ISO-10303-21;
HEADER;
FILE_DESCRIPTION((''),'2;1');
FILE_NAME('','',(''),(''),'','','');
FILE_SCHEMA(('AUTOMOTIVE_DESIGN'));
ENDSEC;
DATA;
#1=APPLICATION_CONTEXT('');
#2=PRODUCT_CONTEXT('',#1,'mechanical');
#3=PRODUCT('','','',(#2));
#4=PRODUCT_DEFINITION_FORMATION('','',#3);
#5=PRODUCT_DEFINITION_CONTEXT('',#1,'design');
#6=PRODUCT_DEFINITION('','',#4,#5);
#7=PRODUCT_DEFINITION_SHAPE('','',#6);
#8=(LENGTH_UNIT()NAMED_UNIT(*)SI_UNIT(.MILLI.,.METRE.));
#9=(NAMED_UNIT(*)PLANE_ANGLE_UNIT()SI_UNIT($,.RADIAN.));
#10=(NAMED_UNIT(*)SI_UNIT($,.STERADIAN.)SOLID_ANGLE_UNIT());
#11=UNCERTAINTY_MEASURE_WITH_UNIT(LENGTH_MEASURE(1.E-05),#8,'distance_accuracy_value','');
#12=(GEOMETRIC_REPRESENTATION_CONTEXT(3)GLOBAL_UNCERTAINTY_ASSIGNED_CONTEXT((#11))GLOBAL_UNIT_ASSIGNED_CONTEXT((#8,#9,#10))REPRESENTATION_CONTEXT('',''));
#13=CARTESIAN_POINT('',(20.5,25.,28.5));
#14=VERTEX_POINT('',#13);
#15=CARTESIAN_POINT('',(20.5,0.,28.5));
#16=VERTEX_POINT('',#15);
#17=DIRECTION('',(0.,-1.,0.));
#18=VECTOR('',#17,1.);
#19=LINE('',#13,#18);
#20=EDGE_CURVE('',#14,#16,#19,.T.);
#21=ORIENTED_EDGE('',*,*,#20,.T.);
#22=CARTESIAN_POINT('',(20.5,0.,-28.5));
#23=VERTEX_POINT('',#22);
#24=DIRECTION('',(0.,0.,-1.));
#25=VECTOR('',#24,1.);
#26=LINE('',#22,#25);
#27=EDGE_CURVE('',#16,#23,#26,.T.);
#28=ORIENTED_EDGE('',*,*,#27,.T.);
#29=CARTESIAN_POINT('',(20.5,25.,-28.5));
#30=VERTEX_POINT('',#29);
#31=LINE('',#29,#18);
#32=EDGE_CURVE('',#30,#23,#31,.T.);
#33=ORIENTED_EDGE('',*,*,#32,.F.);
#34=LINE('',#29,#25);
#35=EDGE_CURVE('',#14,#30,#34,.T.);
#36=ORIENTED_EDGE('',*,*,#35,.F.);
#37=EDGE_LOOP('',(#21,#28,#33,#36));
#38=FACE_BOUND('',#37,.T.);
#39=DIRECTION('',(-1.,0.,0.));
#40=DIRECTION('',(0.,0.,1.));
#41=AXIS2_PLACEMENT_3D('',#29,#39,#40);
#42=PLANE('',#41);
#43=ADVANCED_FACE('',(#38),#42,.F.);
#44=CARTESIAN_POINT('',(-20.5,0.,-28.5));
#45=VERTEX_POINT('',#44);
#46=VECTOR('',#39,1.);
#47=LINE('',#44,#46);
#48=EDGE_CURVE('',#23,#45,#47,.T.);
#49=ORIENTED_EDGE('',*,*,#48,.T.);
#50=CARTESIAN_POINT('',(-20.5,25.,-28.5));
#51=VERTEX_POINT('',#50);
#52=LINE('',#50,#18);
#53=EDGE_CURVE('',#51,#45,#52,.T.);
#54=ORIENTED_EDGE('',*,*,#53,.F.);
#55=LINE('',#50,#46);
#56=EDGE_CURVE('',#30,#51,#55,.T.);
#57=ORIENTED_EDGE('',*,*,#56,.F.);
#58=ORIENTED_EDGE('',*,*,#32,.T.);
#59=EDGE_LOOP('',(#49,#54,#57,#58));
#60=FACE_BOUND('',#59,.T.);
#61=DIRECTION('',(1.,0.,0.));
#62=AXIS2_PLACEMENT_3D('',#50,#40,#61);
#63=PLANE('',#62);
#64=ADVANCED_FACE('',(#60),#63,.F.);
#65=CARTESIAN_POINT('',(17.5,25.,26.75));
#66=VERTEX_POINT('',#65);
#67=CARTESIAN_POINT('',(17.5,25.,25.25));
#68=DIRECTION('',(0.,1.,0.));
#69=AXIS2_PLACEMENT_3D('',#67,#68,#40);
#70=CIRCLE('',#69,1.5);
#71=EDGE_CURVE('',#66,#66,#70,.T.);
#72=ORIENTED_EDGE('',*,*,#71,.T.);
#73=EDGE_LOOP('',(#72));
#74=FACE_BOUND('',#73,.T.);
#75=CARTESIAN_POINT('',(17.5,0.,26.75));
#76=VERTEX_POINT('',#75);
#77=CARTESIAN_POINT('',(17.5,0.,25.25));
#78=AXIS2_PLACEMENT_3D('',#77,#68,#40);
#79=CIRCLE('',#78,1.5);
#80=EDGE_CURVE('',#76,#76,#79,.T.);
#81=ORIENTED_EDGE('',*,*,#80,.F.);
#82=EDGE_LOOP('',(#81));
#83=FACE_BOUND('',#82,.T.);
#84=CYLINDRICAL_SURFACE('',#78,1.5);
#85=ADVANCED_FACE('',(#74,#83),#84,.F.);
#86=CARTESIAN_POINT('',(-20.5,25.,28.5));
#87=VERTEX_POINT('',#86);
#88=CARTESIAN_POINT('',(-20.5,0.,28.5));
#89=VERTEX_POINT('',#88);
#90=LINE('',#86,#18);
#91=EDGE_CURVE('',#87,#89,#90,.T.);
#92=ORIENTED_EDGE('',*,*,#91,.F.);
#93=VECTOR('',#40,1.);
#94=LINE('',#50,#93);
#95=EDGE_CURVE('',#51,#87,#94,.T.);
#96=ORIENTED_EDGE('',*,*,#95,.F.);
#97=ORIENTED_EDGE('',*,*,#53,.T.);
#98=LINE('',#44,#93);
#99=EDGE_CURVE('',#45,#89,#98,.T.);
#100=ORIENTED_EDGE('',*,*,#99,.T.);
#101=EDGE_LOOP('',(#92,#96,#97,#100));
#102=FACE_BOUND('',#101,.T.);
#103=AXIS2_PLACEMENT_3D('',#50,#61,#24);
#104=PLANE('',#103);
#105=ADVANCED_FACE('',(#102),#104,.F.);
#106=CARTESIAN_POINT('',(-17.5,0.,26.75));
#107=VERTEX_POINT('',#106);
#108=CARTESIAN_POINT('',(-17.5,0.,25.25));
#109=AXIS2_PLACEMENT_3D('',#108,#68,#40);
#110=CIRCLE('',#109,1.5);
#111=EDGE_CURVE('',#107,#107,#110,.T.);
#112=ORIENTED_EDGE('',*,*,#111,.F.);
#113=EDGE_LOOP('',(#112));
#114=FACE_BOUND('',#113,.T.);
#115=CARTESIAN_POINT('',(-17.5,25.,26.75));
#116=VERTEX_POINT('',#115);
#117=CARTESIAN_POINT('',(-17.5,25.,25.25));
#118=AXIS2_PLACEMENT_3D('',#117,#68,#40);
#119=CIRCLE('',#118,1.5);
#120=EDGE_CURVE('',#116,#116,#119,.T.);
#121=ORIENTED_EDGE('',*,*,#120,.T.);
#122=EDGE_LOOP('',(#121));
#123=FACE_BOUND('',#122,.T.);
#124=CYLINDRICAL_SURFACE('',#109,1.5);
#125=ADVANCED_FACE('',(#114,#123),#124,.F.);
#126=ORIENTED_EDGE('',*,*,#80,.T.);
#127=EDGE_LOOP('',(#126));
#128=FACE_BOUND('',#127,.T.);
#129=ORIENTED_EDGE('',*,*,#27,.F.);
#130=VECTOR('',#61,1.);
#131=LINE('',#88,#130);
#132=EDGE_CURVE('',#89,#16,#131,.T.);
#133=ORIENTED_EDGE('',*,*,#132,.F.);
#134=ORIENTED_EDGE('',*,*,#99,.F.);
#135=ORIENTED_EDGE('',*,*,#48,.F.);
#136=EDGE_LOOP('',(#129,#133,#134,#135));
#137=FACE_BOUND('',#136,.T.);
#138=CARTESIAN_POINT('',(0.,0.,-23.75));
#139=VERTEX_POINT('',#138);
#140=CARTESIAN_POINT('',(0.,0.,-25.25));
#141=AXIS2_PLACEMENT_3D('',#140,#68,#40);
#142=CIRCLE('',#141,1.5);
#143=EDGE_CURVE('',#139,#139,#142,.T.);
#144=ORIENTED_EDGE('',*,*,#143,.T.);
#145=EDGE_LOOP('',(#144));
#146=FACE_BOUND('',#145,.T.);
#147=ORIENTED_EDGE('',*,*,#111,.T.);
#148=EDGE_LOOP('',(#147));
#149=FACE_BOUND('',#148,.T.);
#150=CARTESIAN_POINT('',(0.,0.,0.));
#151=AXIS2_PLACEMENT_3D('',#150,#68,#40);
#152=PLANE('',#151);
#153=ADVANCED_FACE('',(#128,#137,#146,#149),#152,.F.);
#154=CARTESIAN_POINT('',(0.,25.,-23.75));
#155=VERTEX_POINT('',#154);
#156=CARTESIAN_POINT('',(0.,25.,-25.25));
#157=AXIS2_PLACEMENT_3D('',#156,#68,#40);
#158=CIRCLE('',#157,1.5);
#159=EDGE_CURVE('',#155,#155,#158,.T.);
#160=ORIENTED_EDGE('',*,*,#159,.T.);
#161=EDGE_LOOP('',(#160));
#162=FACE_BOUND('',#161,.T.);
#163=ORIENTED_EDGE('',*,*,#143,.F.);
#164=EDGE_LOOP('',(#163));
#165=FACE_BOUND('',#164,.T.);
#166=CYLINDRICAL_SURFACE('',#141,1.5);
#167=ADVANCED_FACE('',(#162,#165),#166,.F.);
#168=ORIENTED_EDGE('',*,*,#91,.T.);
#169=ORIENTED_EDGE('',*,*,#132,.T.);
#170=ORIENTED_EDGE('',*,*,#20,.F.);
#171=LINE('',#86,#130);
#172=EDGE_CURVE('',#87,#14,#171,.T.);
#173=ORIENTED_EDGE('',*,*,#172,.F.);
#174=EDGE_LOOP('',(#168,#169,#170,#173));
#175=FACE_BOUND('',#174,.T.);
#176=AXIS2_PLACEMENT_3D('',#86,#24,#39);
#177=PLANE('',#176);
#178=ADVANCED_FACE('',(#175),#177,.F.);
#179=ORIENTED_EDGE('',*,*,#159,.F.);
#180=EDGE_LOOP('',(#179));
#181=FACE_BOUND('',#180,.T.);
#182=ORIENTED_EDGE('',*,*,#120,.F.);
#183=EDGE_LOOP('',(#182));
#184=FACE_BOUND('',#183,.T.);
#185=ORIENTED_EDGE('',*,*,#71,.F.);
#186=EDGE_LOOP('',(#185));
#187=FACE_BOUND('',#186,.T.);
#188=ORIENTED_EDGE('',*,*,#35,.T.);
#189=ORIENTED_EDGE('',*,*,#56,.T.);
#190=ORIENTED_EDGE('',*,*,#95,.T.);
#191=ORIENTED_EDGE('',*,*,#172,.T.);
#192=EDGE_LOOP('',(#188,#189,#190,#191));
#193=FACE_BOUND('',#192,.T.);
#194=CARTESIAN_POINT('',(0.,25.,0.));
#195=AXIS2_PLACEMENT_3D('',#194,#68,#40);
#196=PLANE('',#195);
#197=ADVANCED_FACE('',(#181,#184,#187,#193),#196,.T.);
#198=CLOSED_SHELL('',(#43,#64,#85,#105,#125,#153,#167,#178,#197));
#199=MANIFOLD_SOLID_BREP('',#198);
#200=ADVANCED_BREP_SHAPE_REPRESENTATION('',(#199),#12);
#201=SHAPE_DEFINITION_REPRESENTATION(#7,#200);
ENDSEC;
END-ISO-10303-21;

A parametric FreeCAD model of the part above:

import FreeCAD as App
import Part
import Sketcher
from FreeCAD import Vector
Q = App.Units.Quantity

doc = App.newDocument("Part")
params = doc.addObject("Spreadsheet::Sheet", "Params")
for row, (alias, value) in enumerate([
    ("sketch1_width", "41 mm"),
    ("sketch1_height", "57 mm"),
    ("pad1_length", "25 mm"),
    ("sketch2_diameter", "3 mm"),
], start=1):
    params.set(f"A{row}", alias)
    params.set(f"B{row}", "=" + value)
    params.setAlias(f"B{row}", alias)

body = doc.addObject("PartDesign::Body", "Body")

# Sketch on XZ plane
sketch1 = body.newObject("Sketcher::SketchObject", "Sketch")
sketch1.AttachmentSupport = (doc.getObject("XZ_Plane"), [""])
sketch1.MapMode = "FlatFace"
sketch1.addGeometry([
    Part.LineSegment(Vector(-20, -28, 0), Vector(-20, 28, 0)),
    Part.LineSegment(Vector(-20, 28, 0), Vector(20, 28, 0)),
    Part.LineSegment(Vector(20, 28, 0), Vector(20, -28, 0)),
    Part.LineSegment(Vector(20, -28, 0), Vector(-20, -28, 0)),
], False)
sketch1.addConstraint([
    Sketcher.Constraint("Coincident", 0, 2, 1, 1),
    Sketcher.Constraint("Coincident", 1, 2, 2, 1),
    Sketcher.Constraint("Coincident", 2, 2, 3, 1),
    Sketcher.Constraint("Coincident", 3, 2, 0, 1),
    Sketcher.Constraint("Vertical", 0),
    Sketcher.Constraint("Horizontal", 1),
    Sketcher.Constraint("Vertical", 2),
    Sketcher.Constraint("Horizontal", 3),
    Sketcher.Constraint("Symmetric", 0, 2, 2, 2, -1, 1),
    Sketcher.Constraint("DistanceX", 1, 1, 1, 2, Q("41 mm")),
    Sketcher.Constraint("DistanceY", 0, 1, 0, 2, Q("57 mm")),
])
sketch1.setExpression("Constraints[9]", "Params.sketch1_width")
sketch1.setExpression("Constraints[10]", "Params.sketch1_height")
pad1 = body.newObject("PartDesign::Pad", "Pad")
pad1.Profile = sketch1
pad1.setExpression("Length", "Params.pad1_length")
pad1.Reversed = True

# Sketch on XZ plane
sketch2 = body.newObject("Sketcher::SketchObject", "Sketch001")
sketch2.AttachmentSupport = (doc.getObject("XZ_Plane"), [""])
sketch2.MapMode = "FlatFace"
sketch2.AttachmentOffset = App.Placement(Vector(0, 0, -25), App.Rotation())
sketch2.addGeometry([
    Part.Circle(Vector(0, -25.2, 0), Vector(0, 0, 1), 1.5),
    Part.Circle(Vector(-17.5, 25.2, 0), Vector(0, 0, 1), 1.5),
    Part.Circle(Vector(17.5, 25.2, 0), Vector(0, 0, 1), 1.5),
], False)
sketch2.addConstraint([
    Sketcher.Constraint("Equal", 0, 1),
    Sketcher.Constraint("Equal", 1, 2),
    Sketcher.Constraint("Symmetric", 1, 3, 2, 3, -2),
    Sketcher.Constraint("PointOnObject", 0, 3, -2),
    Sketcher.Constraint("Diameter", 0, Q("3 mm")),
    Sketcher.Constraint("DistanceX", 1, 3, 2, 3, Q("35 mm")),
    Sketcher.Constraint("DistanceY", 0, 3, 1, 3, Q("50.5 mm")),
    Sketcher.Constraint("DistanceY", 0, 3, -1, 1, Q("25.25 mm")),
])
sketch2.setExpression("Constraints[4]", "Params.sketch2_diameter")
pocket1 = body.newObject("PartDesign::Pocket", "Pocket")
pocket1.Profile = sketch2
pocket1.Type = "ThroughAll"
pocket1.Reversed = True

doc.recompute()
